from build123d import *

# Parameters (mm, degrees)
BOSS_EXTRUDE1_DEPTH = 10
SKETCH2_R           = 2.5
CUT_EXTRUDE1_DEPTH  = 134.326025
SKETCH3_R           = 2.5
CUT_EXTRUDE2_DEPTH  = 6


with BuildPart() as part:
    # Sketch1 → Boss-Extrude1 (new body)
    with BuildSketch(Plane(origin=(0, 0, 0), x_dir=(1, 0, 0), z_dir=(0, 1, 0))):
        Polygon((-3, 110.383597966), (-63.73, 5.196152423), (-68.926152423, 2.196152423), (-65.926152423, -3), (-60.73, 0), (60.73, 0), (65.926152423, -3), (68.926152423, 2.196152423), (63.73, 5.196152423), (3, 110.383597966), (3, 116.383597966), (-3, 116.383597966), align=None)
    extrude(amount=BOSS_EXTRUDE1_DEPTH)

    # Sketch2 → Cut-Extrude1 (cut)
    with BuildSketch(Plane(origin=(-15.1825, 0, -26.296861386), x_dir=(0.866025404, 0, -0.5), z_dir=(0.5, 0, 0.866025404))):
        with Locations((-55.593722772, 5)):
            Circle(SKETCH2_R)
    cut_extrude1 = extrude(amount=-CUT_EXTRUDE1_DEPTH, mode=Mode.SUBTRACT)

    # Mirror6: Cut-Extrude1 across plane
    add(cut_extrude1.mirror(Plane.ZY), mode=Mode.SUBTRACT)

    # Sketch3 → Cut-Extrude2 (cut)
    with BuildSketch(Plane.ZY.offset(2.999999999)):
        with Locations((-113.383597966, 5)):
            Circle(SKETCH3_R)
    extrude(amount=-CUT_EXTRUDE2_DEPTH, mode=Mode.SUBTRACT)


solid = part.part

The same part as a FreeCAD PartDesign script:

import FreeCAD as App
import Part
import Sketcher
Q = App.Units.Quantity

doc = App.newDocument("Part")
body = doc.addObject("PartDesign::Body", "Body")

# Sketch on XZ plane
sketch1 = body.newObject("Sketcher::SketchObject", "Sketch")
sketch1.AttachmentSupport = (doc.getObject("XZ_Plane"), [""])
sketch1.MapMode = "FlatFace"
sketch1.addGeometry([
    Part.LineSegment(App.Vector(-3, -110, 0), App.Vector(-64, -5, 0)),  # 0
    Part.LineSegment(App.Vector(-64, -5, 0), App.Vector(-69, -2, 0)),  # 1
    Part.LineSegment(App.Vector(-69, -2, 0), App.Vector(-66, 3, 0)),  # 2
    Part.LineSegment(App.Vector(-66, 3, 0), App.Vector(-61, 0, 0)),  # 3
    Part.LineSegment(App.Vector(-61, 0, 0), App.Vector(61, 0, 0)),  # 4
    Part.LineSegment(App.Vector(61, 0, 0), App.Vector(66, 3, 0)),  # 5
    Part.LineSegment(App.Vector(66, 3, 0), App.Vector(69, -2, 0)),  # 6
    Part.LineSegment(App.Vector(69, -2, 0), App.Vector(64, -5, 0)),  # 7
    Part.LineSegment(App.Vector(64, -5, 0), App.Vector(3, -110, 0)),  # 8
    Part.LineSegment(App.Vector(3, -110, 0), App.Vector(3, -116, 0)),  # 9
    Part.LineSegment(App.Vector(3, -116, 0), App.Vector(-3, -116, 0)),  # 10
    Part.LineSegment(App.Vector(-3, -116, 0), App.Vector(-3, -110, 0)),  # 11
], False)
sketch1.addConstraint([
    Sketcher.Constraint("Coincident", 0, 2, 1, 1),
    Sketcher.Constraint("Coincident", 1, 2, 2, 1),
    Sketcher.Constraint("Coincident", 2, 2, 3, 1),
    Sketcher.Constraint("Coincident", 3, 2, 4, 1),
    Sketcher.Constraint("Coincident", 4, 2, 5, 1),
    Sketcher.Constraint("Coincident", 5, 2, 6, 1),
    Sketcher.Constraint("Coincident", 6, 2, 7, 1),
    Sketcher.Constraint("Coincident", 7, 2, 8, 1),
    Sketcher.Constraint("Coincident", 8, 2, 9, 1),
    Sketcher.Constraint("Coincident", 9, 2, 10, 1),
    Sketcher.Constraint("Coincident", 10, 2, 11, 1),
    Sketcher.Constraint("Coincident", 11, 2, 0, 1),
    Sketcher.Constraint("Horizontal", 4),
    Sketcher.Constraint("Vertical", 9),
    Sketcher.Constraint("Horizontal", 10),
    Sketcher.Constraint("Vertical", 11),
    Sketcher.Constraint("Symmetric", 3, 2, 4, 2, -1, 1),
    Sketcher.Constraint("Symmetric", 2, 2, 5, 2, -2),
    Sketcher.Constraint("Symmetric", 1, 2, 6, 2, -2),
    Sketcher.Constraint("Symmetric", 0, 2, 7, 2, -2),
    Sketcher.Constraint("Symmetric", 8, 2, 11, 2, -2),
    Sketcher.Constraint("Perpendicular", 1, 2),
    Sketcher.Constraint("Perpendicular", 2, 3),
    Sketcher.Constraint("Perpendicular", 0, 5),
    Sketcher.Constraint("Equal", 10, 9),
    Sketcher.Constraint("Equal", 1, 2),
    Sketcher.Constraint("Equal", 2, 3),
    Sketcher.Constraint("DistanceX", 10, 2, 10, 1, 6.0),
    Sketcher.Constraint("Angle", 0, Q("120 deg")),
    Sketcher.Constraint("Distance", 1, 6.0),
    Sketcher.Constraint("DistanceX", 4, 1, 4, 2, 121.46),
])
pad1 = body.newObject("PartDesign::Pad", "Pad")
pad1.Profile = sketch1
pad1.Length = 10
pad1.Reversed = True

# Sketch on an angled plane
sketch2 = body.newObject("Sketcher::SketchObject", "Sketch001")
sketch2.Placement = App.Placement(App.Vector(-15.1825, 0, -26.296861), App.Rotation(App.Vector(0.866025404, 0, -0.5), App.Vector(0, 1, 0), App.Vector(0.5, 0, 0.866025404), "ZXY"))
sketch2.addGeometry(Part.Circle(App.Vector(-55.6, 5, 0), App.Vector(0, 0, 1), 2.5), False)
sketch2.addConstraint([
    Sketcher.Constraint("Diameter", 0, 5.0),
    Sketcher.Constraint("DistanceY", -1, 1, 0, 3, 5.0),
    Sketcher.Constraint("DistanceX", 0, 3, -1, 1, 55.593723),
])
pocket1 = body.newObject("PartDesign::Pocket", "Pocket")
pocket1.Profile = sketch2
pocket1.Length = 134.326025
doc.recompute()

mirrored = body.newObject("PartDesign::Mirrored", "Mirrored")
mirrored.Originals = [pocket1]
mirrored.MirrorPlane = (doc.getObject("YZ_Plane"), [""])
body.Tip = mirrored

# Sketch on YZ plane
sketch3 = body.newObject("Sketcher::SketchObject", "Sketch002")
sketch3.AttachmentSupport = (doc.getObject("YZ_Plane"), [""])
sketch3.MapMode = "FlatFace"
sketch3.AttachmentOffset = App.Placement(App.Vector(0, 0, -3), App.Rotation())
sketch3.addGeometry(Part.Circle(App.Vector(5, -113.4, 0), App.Vector(0, 0, 1), 2.5), False)
sketch3.addConstraint([
    Sketcher.Constraint("Diameter", 0, 5.0),
    Sketcher.Constraint("DistanceX", -1, 1, 0, 3, 5.0),
    Sketcher.Constraint("DistanceY", 0, 3, -1, 1, 113.383598),
])
pocket2 = body.newObject("PartDesign::Pocket", "Pocket001")
pocket2.Profile = sketch3
pocket2.Length = 6
pocket2.Reversed = True

doc.recompute()
